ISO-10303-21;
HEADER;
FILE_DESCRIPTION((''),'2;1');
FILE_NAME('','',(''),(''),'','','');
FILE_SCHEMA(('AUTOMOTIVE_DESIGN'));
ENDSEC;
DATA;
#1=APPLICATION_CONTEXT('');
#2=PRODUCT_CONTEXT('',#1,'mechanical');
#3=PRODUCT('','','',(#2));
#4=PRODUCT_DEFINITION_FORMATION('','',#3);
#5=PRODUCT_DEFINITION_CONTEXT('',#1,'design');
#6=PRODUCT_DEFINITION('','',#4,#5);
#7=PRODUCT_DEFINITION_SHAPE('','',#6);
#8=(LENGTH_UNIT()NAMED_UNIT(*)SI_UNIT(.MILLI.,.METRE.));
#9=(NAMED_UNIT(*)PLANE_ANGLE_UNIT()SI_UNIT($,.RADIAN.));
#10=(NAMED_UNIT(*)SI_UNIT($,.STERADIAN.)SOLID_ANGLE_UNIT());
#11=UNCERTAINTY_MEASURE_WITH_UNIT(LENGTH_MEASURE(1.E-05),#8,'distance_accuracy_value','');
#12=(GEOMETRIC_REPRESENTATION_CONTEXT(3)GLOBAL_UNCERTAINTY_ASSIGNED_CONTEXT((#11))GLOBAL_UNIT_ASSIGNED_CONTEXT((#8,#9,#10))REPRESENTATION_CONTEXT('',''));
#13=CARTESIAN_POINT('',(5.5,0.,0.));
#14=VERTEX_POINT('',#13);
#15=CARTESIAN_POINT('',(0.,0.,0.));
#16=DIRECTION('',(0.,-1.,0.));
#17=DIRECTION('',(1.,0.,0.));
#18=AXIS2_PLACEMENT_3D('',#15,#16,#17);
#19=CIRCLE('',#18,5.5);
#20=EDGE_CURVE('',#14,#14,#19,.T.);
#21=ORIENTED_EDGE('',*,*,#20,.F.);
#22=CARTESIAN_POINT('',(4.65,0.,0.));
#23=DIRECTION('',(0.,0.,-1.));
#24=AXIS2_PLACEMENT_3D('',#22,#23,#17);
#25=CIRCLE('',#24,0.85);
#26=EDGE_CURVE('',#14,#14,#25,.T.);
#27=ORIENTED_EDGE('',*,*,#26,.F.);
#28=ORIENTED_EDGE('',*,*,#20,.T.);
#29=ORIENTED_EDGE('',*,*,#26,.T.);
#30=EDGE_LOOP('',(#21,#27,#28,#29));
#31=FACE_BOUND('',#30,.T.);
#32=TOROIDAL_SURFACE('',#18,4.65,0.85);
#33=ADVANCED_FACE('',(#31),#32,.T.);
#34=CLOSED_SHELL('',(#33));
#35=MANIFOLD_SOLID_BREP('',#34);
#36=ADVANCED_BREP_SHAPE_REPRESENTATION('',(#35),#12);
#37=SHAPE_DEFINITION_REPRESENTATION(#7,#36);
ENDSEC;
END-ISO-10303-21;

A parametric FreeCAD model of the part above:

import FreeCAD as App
import Part
import Sketcher
from FreeCAD import Vector

doc = App.newDocument("Part")
body = doc.addObject("PartDesign::Body", "Body")

# Sketch on XY plane
sketch1 = body.newObject("Sketcher::SketchObject", "Sketch")
sketch1.AttachmentSupport = (doc.getObject("XY_Plane"), [""])
sketch1.MapMode = "FlatFace"
sketch1.addGeometry(Part.Circle(Vector(4.7, 0, 0), Vector(0, 0, 1), 0.8), False)
sketch1.addConstraint(Sketcher.Constraint("PointOnObject", 0, 3, -1))
sketch1.addConstraint(Sketcher.Constraint("Diameter", 0, 1.7))
sketch1.addConstraint(Sketcher.Constraint("DistanceX", -1, 1, 0, 3, 4.65))

# Sketch on XZ plane
sketch2 = body.newObject("Sketcher::SketchObject", "Sketch001")
sketch2.AttachmentSupport = (doc.getObject("XZ_Plane"), [""])
sketch2.MapMode = "FlatFace"
sketch2.addGeometry(Part.Circle(Vector(0, 0, 0), Vector(0, 0, 1), 6), False)
sketch2.addConstraint(Sketcher.Constraint("Coincident", 0, 3, -1, 1))
sketch2.addConstraint(Sketcher.Constraint("Diameter", 0, 11.0))
doc.recompute()

additivepipe = body.newObject("PartDesign::AdditivePipe", "AdditivePipe")
additivepipe.Profile = sketch1
additivepipe.Spine = (sketch2, ["Edge1"])

doc.recompute()
